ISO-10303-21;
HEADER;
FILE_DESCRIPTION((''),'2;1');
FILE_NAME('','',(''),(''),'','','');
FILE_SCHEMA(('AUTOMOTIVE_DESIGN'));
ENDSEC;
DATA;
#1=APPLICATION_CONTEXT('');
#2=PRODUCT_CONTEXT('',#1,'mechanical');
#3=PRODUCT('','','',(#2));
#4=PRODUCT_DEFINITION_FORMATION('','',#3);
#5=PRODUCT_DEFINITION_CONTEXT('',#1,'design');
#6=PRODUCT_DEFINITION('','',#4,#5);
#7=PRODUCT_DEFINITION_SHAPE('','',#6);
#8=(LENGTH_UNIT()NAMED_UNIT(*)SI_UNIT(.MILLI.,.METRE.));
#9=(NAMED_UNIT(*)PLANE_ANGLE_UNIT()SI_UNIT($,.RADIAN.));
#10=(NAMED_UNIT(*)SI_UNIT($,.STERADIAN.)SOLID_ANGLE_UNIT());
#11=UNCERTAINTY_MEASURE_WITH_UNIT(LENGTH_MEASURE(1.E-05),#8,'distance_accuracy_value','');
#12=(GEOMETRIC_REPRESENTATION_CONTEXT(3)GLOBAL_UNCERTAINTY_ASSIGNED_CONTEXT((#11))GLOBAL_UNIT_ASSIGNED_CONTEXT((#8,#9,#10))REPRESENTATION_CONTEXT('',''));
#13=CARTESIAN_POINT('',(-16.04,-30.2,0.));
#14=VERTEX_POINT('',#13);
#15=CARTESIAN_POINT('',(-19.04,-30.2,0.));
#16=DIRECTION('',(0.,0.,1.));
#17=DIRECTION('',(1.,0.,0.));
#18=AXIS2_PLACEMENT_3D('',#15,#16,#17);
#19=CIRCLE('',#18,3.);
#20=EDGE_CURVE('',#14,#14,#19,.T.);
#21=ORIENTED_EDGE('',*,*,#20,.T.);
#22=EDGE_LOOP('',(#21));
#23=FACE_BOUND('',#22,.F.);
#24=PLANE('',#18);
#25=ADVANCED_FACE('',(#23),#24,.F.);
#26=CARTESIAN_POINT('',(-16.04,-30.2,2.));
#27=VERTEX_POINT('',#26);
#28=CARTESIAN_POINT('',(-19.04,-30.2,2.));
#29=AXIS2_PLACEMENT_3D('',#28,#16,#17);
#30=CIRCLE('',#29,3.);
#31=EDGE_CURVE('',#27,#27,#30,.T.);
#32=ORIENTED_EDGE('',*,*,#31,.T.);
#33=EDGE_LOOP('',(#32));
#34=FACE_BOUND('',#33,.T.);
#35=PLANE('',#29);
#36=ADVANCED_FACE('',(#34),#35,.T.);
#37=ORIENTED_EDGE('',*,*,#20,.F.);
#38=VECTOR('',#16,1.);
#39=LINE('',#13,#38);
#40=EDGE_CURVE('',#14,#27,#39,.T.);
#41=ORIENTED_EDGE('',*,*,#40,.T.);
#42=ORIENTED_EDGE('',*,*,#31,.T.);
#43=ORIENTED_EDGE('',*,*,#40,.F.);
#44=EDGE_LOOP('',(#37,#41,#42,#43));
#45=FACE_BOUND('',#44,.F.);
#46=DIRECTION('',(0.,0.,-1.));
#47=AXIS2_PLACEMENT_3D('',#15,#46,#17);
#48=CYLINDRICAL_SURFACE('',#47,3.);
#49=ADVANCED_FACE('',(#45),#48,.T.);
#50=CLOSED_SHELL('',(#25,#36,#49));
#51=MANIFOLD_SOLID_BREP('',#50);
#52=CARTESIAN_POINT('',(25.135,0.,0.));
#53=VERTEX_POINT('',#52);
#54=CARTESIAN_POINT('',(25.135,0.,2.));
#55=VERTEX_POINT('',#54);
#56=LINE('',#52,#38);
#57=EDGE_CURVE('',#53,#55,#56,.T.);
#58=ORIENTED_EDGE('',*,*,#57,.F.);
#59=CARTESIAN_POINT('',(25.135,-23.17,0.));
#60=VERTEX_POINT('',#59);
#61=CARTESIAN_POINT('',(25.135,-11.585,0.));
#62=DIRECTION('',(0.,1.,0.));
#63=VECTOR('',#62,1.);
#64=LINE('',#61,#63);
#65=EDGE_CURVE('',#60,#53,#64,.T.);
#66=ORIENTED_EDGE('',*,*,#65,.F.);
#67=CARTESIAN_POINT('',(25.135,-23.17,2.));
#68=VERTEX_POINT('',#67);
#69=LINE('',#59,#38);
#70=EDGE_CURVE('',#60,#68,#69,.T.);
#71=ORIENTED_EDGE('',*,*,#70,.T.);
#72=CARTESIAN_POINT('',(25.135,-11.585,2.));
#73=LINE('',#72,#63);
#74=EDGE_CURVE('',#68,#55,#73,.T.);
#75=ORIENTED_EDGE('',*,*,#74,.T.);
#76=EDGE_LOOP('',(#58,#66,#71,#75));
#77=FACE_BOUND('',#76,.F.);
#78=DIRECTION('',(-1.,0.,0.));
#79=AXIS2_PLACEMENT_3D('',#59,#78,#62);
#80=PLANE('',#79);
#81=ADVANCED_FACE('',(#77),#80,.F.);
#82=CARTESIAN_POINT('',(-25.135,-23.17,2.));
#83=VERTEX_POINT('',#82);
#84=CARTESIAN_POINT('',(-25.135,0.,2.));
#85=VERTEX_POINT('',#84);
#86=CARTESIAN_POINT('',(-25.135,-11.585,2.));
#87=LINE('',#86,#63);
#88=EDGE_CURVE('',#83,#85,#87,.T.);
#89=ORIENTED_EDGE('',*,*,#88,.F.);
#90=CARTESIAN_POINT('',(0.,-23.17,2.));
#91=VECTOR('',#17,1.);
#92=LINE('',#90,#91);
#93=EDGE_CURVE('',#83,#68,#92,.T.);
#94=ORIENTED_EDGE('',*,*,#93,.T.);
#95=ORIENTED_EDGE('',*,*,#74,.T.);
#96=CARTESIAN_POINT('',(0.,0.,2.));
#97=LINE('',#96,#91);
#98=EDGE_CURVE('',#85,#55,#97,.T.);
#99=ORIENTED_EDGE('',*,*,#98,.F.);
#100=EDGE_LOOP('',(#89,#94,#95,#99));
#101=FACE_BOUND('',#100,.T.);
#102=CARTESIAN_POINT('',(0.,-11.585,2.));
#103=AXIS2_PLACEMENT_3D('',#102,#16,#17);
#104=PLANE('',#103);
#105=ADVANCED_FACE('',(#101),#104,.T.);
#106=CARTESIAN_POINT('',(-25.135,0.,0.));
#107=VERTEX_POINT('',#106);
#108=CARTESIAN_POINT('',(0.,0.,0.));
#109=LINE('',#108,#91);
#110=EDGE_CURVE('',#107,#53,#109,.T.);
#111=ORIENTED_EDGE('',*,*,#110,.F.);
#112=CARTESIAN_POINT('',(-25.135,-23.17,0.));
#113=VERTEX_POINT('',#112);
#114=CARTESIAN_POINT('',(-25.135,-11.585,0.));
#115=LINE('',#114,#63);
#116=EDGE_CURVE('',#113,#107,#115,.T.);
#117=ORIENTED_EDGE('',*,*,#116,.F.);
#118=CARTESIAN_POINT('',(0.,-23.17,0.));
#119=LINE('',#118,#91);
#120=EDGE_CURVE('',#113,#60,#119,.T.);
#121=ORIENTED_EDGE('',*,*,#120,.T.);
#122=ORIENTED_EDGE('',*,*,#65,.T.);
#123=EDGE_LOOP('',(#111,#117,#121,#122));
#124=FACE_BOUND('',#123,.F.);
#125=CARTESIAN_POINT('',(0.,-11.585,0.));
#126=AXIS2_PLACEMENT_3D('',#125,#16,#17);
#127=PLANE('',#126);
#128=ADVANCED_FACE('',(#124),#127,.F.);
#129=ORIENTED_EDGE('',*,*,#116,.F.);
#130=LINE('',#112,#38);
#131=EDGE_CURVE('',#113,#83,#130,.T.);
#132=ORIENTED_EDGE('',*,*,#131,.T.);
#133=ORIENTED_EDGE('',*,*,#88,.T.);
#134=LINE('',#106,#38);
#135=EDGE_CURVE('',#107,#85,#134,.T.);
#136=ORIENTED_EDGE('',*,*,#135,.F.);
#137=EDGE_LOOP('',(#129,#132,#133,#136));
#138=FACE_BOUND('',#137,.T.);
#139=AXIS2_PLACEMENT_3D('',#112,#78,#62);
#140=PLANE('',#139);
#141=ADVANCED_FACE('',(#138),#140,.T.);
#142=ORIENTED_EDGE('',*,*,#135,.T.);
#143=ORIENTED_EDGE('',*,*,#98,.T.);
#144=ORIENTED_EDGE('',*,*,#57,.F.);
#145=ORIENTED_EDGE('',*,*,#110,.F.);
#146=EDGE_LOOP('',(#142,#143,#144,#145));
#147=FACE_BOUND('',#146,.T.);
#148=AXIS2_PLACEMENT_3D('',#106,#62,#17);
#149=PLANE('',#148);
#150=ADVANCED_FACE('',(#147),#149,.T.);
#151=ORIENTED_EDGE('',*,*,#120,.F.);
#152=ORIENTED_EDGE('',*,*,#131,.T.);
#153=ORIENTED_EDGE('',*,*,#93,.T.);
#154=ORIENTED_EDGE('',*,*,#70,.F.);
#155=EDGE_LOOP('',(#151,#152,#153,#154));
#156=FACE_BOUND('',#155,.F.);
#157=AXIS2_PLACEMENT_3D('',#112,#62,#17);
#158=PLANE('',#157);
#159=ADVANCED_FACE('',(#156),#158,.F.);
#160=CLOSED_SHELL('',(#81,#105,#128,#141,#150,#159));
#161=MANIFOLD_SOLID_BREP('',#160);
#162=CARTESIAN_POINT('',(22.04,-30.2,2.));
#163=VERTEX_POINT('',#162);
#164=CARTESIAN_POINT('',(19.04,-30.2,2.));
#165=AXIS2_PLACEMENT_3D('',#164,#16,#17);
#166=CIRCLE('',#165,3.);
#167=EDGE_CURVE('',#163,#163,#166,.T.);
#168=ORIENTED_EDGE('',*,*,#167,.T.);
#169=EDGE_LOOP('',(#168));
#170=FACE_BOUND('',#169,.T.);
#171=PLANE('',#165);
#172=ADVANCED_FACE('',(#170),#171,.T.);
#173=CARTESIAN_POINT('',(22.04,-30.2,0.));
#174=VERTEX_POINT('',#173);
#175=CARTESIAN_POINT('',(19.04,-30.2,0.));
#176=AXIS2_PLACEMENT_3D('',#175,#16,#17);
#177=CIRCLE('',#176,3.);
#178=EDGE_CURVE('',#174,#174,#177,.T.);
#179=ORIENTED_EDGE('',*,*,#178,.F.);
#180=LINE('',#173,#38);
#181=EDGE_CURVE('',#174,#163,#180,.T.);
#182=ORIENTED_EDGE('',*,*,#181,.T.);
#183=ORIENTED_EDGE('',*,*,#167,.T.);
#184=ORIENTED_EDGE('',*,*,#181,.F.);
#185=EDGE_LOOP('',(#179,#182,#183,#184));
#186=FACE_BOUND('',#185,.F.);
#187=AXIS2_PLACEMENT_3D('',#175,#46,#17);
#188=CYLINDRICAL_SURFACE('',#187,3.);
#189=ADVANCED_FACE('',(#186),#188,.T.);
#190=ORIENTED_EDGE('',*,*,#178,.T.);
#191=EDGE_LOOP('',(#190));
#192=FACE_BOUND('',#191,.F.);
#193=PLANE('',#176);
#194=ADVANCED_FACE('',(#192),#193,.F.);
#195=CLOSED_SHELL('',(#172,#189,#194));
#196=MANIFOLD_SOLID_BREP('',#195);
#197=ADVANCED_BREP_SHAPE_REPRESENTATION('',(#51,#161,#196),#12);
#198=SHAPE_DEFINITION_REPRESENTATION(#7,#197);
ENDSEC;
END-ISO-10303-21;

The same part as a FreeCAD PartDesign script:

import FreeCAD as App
import Part
import Sketcher

V = App.Vector
Q = App.Units.Quantity

doc = App.newDocument("Part")
body = doc.addObject("PartDesign::Body", "Body")
body.AllowCompound = True

# Sketch on XY plane
sketch1 = body.newObject("Sketcher::SketchObject", "Sketch")
sketch1.AttachmentSupport = (doc.getObject("XY_Plane"), [""])
sketch1.MapMode = "FlatFace"
sketch1.addGeometry(Part.LineSegment(V(-25.1, 0, 0), V(-25.1, -23.2, 0)), False)
sketch1.addGeometry(Part.LineSegment(V(-25.1, -23.2, 0), V(25.1, -23.2, 0)), False)
sketch1.addGeometry(Part.LineSegment(V(25.1, -23.2, 0), V(25.1, 0, 0)), False)
sketch1.addGeometry(Part.LineSegment(V(25.1, 0, 0), V(-25.1, 0, 0)), False)
sketch1.addGeometry(Part.Circle(V(-19, -30.2, 0), V(0, 0, 1), 3), False)
sketch1.addGeometry(Part.Circle(V(19, -30.2, 0), V(0, 0, 1), 3), False)
sketch1.addConstraint(Sketcher.Constraint("Coincident", 0, 2, 1, 1))
sketch1.addConstraint(Sketcher.Constraint("Coincident", 1, 2, 2, 1))
sketch1.addConstraint(Sketcher.Constraint("Coincident", 2, 2, 3, 1))
sketch1.addConstraint(Sketcher.Constraint("Coincident", 3, 2, 0, 1))
sketch1.addConstraint(Sketcher.Constraint("Vertical", 0))
sketch1.addConstraint(Sketcher.Constraint("Horizontal", 1))
sketch1.addConstraint(Sketcher.Constraint("Vertical", 2))
sketch1.addConstraint(Sketcher.Constraint("Horizontal", 3))
sketch1.addConstraint(Sketcher.Constraint("Equal", 4, 5))
sketch1.addConstraint(Sketcher.Constraint("Symmetric", 2, 2, 3, 2, -1, 1))
sketch1.addConstraint(Sketcher.Constraint("Symmetric", 4, 3, 5, 3, -2))
sketch1.addConstraint(Sketcher.Constraint("Diameter", 4, Q("6 mm")))
sketch1.addConstraint(Sketcher.Constraint("DistanceX", 1, 1, 1, 2, Q("50.27 mm")))
sketch1.addConstraint(Sketcher.Constraint("DistanceY", 0, 2, 0, 1, Q("23.17 mm")))
sketch1.addConstraint(Sketcher.Constraint("DistanceY", 4, 3, -1, 1, Q("30.2 mm")))
sketch1.addConstraint(Sketcher.Constraint("DistanceX", 4, 3, -1, 1, Q("19.04 mm")))
pad1 = body.newObject("PartDesign::Pad", "Pad")
pad1.Profile = sketch1
pad1.Length = 2

doc.recompute()
